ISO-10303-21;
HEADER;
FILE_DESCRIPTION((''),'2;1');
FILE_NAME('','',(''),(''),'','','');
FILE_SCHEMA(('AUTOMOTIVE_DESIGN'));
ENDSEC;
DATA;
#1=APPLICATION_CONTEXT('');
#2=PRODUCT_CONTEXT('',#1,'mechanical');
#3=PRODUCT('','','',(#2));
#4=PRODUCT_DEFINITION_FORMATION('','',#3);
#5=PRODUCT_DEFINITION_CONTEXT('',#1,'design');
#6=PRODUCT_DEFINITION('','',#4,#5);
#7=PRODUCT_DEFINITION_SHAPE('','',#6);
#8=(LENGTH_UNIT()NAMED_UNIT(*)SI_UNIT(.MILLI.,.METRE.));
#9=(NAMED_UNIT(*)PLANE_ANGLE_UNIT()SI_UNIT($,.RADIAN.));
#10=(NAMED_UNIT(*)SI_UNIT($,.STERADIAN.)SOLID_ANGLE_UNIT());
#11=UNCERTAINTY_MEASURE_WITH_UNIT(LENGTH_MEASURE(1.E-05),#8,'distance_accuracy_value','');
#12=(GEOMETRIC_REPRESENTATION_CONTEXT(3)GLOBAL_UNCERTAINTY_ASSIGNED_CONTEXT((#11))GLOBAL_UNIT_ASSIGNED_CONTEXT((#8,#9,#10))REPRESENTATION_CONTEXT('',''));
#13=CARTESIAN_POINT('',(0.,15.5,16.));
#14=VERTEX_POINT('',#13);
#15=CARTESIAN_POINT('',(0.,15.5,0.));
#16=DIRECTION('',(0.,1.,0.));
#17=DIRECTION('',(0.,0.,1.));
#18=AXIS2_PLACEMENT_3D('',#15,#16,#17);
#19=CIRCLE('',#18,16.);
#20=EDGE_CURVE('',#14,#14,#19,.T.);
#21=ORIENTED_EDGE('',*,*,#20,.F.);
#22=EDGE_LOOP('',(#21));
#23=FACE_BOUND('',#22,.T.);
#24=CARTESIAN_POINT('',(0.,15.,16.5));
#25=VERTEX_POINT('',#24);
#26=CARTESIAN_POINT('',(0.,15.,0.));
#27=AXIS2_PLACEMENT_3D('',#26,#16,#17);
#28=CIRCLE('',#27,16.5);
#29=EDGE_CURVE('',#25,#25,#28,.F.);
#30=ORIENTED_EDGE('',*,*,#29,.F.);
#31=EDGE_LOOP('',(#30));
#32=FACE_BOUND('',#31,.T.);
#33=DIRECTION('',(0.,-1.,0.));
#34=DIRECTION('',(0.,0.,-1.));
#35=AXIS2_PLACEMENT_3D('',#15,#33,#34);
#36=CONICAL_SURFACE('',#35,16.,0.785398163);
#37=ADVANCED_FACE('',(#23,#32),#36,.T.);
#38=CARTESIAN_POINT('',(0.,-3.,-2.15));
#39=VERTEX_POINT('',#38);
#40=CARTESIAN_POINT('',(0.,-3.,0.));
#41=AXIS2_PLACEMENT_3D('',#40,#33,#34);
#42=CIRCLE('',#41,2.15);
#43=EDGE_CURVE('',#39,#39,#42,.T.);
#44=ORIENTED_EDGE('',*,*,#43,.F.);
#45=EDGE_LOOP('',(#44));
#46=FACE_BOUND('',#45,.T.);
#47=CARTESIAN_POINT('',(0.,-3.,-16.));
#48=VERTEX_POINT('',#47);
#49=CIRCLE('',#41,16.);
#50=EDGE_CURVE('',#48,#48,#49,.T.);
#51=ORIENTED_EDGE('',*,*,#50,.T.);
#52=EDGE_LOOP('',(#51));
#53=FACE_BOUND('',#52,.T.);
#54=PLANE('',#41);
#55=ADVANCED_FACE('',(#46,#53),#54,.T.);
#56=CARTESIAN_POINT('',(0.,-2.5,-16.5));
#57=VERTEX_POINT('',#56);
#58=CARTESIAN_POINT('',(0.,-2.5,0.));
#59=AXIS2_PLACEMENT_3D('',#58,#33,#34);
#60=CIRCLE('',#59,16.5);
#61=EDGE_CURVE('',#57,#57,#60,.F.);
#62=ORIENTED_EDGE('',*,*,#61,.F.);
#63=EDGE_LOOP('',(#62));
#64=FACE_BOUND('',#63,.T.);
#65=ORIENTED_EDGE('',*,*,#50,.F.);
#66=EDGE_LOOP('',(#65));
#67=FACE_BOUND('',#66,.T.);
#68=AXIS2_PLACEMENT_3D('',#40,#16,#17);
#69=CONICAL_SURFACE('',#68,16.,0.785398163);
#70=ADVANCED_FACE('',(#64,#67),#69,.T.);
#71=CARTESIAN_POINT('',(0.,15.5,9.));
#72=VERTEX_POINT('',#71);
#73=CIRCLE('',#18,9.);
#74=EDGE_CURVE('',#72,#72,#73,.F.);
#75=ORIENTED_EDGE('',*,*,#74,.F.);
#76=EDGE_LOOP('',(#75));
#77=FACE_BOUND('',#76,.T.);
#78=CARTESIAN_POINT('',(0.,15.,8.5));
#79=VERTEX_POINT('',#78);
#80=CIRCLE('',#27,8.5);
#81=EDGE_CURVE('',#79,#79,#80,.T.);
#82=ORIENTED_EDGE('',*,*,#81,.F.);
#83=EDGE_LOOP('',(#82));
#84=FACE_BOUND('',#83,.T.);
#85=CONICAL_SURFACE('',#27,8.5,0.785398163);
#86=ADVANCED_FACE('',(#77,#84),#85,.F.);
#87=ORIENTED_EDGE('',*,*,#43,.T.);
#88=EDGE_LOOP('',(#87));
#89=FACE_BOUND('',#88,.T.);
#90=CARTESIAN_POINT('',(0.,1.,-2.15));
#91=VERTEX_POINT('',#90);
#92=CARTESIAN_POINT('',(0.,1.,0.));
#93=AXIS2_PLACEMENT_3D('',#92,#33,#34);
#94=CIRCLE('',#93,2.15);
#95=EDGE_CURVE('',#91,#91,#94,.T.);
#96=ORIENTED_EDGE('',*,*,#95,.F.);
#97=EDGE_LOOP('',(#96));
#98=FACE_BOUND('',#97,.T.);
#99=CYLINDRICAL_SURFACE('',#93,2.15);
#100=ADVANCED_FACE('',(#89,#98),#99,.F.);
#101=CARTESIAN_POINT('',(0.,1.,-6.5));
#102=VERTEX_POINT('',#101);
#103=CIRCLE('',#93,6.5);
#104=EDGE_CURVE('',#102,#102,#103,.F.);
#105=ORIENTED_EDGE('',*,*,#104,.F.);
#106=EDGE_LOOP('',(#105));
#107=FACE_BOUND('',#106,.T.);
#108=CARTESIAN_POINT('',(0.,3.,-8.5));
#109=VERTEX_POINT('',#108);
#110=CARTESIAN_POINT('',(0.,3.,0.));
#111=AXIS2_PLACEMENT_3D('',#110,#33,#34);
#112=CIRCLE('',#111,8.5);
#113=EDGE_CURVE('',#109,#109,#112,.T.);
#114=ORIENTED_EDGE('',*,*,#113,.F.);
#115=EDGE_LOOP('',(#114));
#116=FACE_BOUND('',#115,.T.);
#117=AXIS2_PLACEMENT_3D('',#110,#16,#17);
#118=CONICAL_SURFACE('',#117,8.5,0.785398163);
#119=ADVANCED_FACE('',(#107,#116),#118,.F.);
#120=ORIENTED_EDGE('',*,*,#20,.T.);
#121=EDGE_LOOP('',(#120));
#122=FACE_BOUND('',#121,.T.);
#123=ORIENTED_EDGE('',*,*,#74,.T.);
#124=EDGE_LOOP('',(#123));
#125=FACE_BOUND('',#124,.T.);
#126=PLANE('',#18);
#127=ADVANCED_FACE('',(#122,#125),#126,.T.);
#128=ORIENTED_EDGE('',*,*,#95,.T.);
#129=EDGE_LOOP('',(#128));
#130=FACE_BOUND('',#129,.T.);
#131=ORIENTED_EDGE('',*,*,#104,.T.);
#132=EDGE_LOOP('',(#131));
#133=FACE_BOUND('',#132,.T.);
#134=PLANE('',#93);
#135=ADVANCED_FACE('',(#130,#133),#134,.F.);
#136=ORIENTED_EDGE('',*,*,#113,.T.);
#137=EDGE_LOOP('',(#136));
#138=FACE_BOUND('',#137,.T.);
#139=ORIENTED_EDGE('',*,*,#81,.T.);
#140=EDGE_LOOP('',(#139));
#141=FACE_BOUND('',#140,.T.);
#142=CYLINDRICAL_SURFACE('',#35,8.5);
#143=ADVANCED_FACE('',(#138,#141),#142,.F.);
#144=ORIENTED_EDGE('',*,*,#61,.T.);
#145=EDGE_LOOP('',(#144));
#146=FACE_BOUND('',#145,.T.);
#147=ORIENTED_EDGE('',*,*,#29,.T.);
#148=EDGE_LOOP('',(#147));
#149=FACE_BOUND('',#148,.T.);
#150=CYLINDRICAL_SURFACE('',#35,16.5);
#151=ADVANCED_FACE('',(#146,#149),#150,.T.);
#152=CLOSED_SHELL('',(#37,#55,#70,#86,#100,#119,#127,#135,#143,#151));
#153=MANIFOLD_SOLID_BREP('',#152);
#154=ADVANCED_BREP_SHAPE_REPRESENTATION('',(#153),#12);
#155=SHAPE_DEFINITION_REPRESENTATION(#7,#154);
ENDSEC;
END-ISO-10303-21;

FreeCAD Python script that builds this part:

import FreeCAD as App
import Part
import Sketcher

V = App.Vector


def edges_at(feature, points):
    """Names of the edges that pass closest to the given points."""
    edges = feature.Shape.Edges
    near = lambda p: min(range(len(edges)), key=lambda i: edges[i].distToShape(Part.Vertex(*p))[0])
    return sorted({f"Edge{near(p) + 1}" for p in points})

doc = App.newDocument("Part")
body = doc.addObject("PartDesign::Body", "Body")

# Sketch on XZ plane
sketch1 = doc.addObject("Sketcher::SketchObject", "Sketch")
body.addObject(sketch1)
sketch1.AttachmentSupport = (doc.XZ_Plane, [""])
sketch1.MapMode = "FlatFace"
sketch1.addGeometry([
    Part.Circle(V(0, 0, 0), V(0, 0, 1), 16),
    Part.Circle(V(0, 0, 0), V(0, 0, 1), 8),
], False)
sketch1.addConstraint([
    Sketcher.Constraint("Coincident", 0, 3, -1, 1),
    Sketcher.Constraint("Coincident", 1, 3, -1, 1),
    Sketcher.Constraint("Diameter", 0, 33.0),
    Sketcher.Constraint("Diameter", 1, 17.0),
])
pad1 = doc.addObject("PartDesign::Pad", "Pad")
body.addObject(pad1)
pad1.Profile = sketch1
pad1.Length = 15.5
pad1.Reversed = True

# Sketch on XZ plane
sketch2 = doc.addObject("Sketcher::SketchObject", "Sketch001")
body.addObject(sketch2)
sketch2.AttachmentSupport = (doc.XZ_Plane, [""])
sketch2.MapMode = "FlatFace"
sketch2.addGeometry([
    Part.Circle(V(0, 0, 0), V(0, 0, 1), 16.5),
    Part.Circle(V(0, 0, 0), V(0, 0, 1), 2.1),
], False)
sketch2.addConstraint([
    Sketcher.Constraint("Coincident", 0, 3, -1, 1),
    Sketcher.Constraint("Coincident", 1, 3, -1, 1),
    Sketcher.Constraint("Diameter", 0, 33.0),
    Sketcher.Constraint("Diameter", 1, 4.3),
])
pad2 = doc.addObject("PartDesign::Pad", "Pad001")
body.addObject(pad2)
pad2.Profile = sketch2
pad2.Type = "TwoLengths"
pad2.Length = 3
pad2.Length2 = 1
doc.recompute()

chamfer = doc.addObject("PartDesign::Chamfer", "Chamfer")
body.addObject(chamfer)
chamfer.Base = (pad2, edges_at(pad2, [(-16.5, -3, 0), (-16.5, 15.5, 0), (-8.5, 15.5, 0)]))
chamfer.Size = 0.5
doc.recompute()

chamfer2 = doc.addObject("PartDesign::Chamfer", "Chamfer001")
body.addObject(chamfer2)
chamfer2.Base = (chamfer, edges_at(chamfer, [(-8.5, 1, 0)]))
chamfer2.Size = 2

doc.recompute()
